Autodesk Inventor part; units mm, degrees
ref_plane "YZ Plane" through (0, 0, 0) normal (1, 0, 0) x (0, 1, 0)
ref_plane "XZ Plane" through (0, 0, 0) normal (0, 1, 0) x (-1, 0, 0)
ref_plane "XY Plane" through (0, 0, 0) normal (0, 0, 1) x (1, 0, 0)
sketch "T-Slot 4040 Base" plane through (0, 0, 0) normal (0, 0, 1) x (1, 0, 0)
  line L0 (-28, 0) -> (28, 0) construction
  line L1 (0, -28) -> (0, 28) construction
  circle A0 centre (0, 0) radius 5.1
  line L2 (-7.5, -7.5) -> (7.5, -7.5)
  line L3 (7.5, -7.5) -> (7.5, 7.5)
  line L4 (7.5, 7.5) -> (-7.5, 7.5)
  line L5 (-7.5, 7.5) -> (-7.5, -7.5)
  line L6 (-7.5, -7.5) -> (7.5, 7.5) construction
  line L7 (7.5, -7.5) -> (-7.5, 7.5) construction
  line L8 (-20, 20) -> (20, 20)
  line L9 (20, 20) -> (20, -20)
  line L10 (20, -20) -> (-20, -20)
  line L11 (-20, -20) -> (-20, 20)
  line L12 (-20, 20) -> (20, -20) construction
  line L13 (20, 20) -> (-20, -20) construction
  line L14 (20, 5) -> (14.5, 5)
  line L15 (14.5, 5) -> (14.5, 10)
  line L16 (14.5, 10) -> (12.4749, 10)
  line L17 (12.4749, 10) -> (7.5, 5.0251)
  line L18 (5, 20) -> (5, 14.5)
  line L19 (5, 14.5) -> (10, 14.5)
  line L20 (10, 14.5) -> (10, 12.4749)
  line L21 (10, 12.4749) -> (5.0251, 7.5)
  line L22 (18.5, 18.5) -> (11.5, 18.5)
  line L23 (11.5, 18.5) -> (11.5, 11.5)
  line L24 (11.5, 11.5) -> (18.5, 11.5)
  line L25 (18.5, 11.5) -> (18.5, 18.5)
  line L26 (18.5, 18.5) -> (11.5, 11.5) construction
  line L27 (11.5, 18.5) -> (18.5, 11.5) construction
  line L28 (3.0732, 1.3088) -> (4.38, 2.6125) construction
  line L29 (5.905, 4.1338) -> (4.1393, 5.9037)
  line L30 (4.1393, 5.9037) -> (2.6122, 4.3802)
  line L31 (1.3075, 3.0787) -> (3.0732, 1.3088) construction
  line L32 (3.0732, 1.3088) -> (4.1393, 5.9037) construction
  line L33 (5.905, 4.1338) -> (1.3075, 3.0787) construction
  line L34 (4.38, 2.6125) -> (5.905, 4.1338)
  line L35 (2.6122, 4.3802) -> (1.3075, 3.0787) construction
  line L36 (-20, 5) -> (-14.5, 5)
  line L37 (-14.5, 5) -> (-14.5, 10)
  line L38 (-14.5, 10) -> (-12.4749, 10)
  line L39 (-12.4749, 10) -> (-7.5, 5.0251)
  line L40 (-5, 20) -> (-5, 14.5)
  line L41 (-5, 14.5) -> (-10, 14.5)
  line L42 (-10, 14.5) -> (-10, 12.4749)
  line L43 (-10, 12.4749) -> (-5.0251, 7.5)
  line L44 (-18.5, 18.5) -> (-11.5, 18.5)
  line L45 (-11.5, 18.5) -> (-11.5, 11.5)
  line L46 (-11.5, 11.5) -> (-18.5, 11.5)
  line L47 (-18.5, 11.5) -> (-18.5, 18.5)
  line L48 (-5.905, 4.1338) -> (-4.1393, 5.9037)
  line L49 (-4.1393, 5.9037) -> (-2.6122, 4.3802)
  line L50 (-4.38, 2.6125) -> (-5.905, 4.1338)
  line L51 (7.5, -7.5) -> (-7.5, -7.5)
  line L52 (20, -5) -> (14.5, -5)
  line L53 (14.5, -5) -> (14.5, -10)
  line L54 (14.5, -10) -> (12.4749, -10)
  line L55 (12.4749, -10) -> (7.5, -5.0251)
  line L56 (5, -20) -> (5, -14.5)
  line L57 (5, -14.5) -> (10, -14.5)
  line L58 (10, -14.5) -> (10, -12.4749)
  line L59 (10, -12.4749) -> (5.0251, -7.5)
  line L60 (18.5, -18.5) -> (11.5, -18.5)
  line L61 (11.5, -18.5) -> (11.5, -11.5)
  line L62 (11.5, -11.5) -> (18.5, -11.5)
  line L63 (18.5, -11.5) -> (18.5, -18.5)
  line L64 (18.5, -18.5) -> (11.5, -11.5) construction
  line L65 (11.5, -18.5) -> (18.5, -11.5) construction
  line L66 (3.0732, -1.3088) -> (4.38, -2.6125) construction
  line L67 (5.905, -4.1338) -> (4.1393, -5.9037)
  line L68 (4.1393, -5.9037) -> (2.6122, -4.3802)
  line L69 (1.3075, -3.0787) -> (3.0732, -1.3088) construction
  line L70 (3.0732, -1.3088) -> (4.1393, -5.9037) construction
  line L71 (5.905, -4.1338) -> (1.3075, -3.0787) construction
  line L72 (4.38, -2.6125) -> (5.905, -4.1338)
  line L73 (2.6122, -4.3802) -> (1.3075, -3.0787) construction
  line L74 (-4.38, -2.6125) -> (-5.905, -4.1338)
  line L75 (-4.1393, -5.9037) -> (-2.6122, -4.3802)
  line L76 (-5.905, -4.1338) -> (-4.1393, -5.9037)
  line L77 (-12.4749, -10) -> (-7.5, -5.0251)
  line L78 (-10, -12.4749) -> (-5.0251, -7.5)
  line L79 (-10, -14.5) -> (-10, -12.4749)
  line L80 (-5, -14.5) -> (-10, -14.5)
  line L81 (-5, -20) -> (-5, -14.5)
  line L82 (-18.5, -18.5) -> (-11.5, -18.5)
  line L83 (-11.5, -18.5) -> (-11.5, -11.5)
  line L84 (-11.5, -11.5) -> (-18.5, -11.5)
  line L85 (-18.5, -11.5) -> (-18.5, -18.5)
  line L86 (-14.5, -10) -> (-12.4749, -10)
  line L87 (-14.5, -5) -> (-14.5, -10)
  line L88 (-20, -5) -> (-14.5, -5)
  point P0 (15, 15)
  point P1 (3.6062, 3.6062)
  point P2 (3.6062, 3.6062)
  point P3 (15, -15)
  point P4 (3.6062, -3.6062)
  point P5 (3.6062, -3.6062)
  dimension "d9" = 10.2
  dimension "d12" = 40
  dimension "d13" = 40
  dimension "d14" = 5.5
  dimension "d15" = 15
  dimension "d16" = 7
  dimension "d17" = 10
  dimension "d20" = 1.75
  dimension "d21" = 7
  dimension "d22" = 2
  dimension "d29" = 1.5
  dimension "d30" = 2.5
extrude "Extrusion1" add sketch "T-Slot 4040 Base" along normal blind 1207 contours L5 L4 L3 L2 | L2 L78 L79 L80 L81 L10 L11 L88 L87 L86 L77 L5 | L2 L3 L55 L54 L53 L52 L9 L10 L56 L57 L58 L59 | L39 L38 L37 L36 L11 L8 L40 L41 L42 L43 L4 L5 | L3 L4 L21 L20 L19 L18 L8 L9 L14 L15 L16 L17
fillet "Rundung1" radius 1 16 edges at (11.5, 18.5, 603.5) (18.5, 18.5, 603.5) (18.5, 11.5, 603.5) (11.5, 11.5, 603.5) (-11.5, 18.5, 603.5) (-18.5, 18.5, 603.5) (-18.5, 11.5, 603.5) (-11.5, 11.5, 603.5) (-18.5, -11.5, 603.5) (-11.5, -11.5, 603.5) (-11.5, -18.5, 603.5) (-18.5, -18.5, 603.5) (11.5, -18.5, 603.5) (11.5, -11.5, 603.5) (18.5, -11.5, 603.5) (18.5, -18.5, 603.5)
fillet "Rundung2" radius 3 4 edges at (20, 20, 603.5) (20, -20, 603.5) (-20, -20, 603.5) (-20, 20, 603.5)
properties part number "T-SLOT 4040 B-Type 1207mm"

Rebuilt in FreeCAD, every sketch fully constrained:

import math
import FreeCAD as App
import Part
import Sketcher
Q = App.Units.Quantity


def edges_at(feature, points):
    """Names of the edges that pass closest to the given points."""
    edges = feature.Shape.Edges
    near = lambda p: min(range(len(edges)), key=lambda i: edges[i].distToShape(Part.Vertex(*p))[0])
    return sorted({f"Edge{near(p) + 1}" for p in points})


def add_polygon(sketch, points):
    """Adds a closed chain of lines whose ends are joined by coincident constraints."""
    first, n = sketch.GeometryCount, len(points)
    for a, b in zip(points, points[1:] + points[:1]):
        sketch.addGeometry(Part.LineSegment(App.Vector(*a, 0), App.Vector(*b, 0)), False)
    for i in range(n):
        sketch.addConstraint(Sketcher.Constraint("Coincident", first + i, 2, first + (i + 1) % n, 1))

doc = App.newDocument("Part")
body = doc.addObject("PartDesign::Body", "Body")

# Sketch on XY plane
sketch1 = doc.addObject("Sketcher::SketchObject", "Sketch")
body.addObject(sketch1)
sketch1.AttachmentSupport = (doc.XY_Plane, [""])
sketch1.MapMode = "FlatFace"
add_polygon(sketch1, [(-7.5, 5.0251), (-7.5, -5.0251), (-12.4749, -10), (-14.5, -10), (-14.5, -5), (-20, -5), (-20, -20), (-5, -20), (-5, -14.5), (-10, -14.5), (-10, -12.4749), (-5.0251, -7.5), (5.0251, -7.5), (10, -12.4749), (10, -14.5), (5, -14.5), (5, -20), (20, -20), (20, -5), (14.5, -5), (14.5, -10), (12.4749, -10), (7.5, -5.0251), (7.5, 5.0251), (12.4749, 10), (14.5, 10), (14.5, 5), (20, 5), (20, 20), (5, 20), (5, 14.5), (10, 14.5), (10, 12.4749), (5.0251, 7.5), (-5.0251, 7.5), (-10, 12.4749), (-10, 14.5), (-5, 14.5), (-5, 20), (-20, 20), (-20, 5), (-14.5, 5), (-14.5, 10), (-12.4749, 10)])  # lines 0-43
sketch1.addGeometry(Part.ArcOfCircle(Part.Circle(App.Vector(0, 0, 0), App.Vector(0, 0, 1), 5.1), math.radians(-30.814436), math.radians(30.814436)), False)  # 44
sketch1.addGeometry(Part.LineSegment(App.Vector(4.38, -2.6125, 0), App.Vector(5.905, -4.1338, 0)), False)  # 45
sketch1.addGeometry(Part.LineSegment(App.Vector(5.905, -4.1338, 0), App.Vector(4.1393, -5.9037, 0)), False)  # 46
sketch1.addGeometry(Part.LineSegment(App.Vector(4.1393, -5.9037, 0), App.Vector(2.6122, -4.3802, 0)), False)  # 47
sketch1.addGeometry(Part.ArcOfCircle(Part.Circle(App.Vector(0, 0, 0), App.Vector(0, 0, 1), 5.1), math.radians(-120.810391), math.radians(-59.189609)), False)  # 48
sketch1.addGeometry(Part.LineSegment(App.Vector(-2.6122, -4.3802, 0), App.Vector(-4.1393, -5.9037, 0)), False)  # 49
sketch1.addGeometry(Part.LineSegment(App.Vector(-4.1393, -5.9037, 0), App.Vector(-5.905, -4.1338, 0)), False)  # 50
sketch1.addGeometry(Part.LineSegment(App.Vector(-5.905, -4.1338, 0), App.Vector(-4.38, -2.6125, 0)), False)  # 51
sketch1.addGeometry(Part.ArcOfCircle(Part.Circle(App.Vector(0, 0, 0), App.Vector(0, 0, 1), 5.1), math.radians(149.185564), math.radians(210.814436)), False)  # 52
sketch1.addGeometry(Part.LineSegment(App.Vector(-4.38, 2.6125, 0), App.Vector(-5.905, 4.1338, 0)), False)  # 53
sketch1.addGeometry(Part.LineSegment(App.Vector(-5.905, 4.1338, 0), App.Vector(-4.1393, 5.9037, 0)), False)  # 54
sketch1.addGeometry(Part.LineSegment(App.Vector(-4.1393, 5.9037, 0), App.Vector(-2.6122, 4.3802, 0)), False)  # 55
sketch1.addGeometry(Part.ArcOfCircle(Part.Circle(App.Vector(0, 0, 0), App.Vector(0, 0, 1), 5.1), math.radians(59.189609), math.radians(120.810391)), False)  # 56
sketch1.addGeometry(Part.LineSegment(App.Vector(2.6122, 4.3802, 0), App.Vector(4.1393, 5.9037, 0)), False)  # 57
sketch1.addGeometry(Part.LineSegment(App.Vector(4.1393, 5.9037, 0), App.Vector(5.905, 4.1338, 0)), False)  # 58
sketch1.addGeometry(Part.LineSegment(App.Vector(5.905, 4.1338, 0), App.Vector(4.38, 2.6125, 0)), False)  # 59
add_polygon(sketch1, [(-18.5, -11.5), (-11.5, -11.5), (-11.5, -18.5), (-18.5, -18.5)])  # lines 60-63
add_polygon(sketch1, [(-11.5, 18.5), (-11.5, 11.5), (-18.5, 11.5), (-18.5, 18.5)])  # lines 64-67
add_polygon(sketch1, [(18.5, 11.5), (11.5, 11.5), (11.5, 18.5), (18.5, 18.5)])  # lines 68-71
add_polygon(sketch1, [(11.5, -18.5), (11.5, -11.5), (18.5, -11.5), (18.5, -18.5)])  # lines 72-75
sketch1.addConstraint(Sketcher.Constraint("Coincident", 44, 1, 45, 1))
sketch1.addConstraint(Sketcher.Constraint("Coincident", 45, 2, 46, 1))
sketch1.addConstraint(Sketcher.Constraint("Coincident", 46, 2, 47, 1))
sketch1.addConstraint(Sketcher.Constraint("Coincident", 47, 2, 48, 2))
sketch1.addConstraint(Sketcher.Constraint("Coincident", 48, 1, 49, 1))
sketch1.addConstraint(Sketcher.Constraint("Coincident", 49, 2, 50, 1))
sketch1.addConstraint(Sketcher.Constraint("Coincident", 50, 2, 51, 1))
sketch1.addConstraint(Sketcher.Constraint("Coincident", 51, 2, 52, 2))
sketch1.addConstraint(Sketcher.Constraint("Coincident", 52, 1, 53, 1))
sketch1.addConstraint(Sketcher.Constraint("Coincident", 53, 2, 54, 1))
sketch1.addConstraint(Sketcher.Constraint("Coincident", 54, 2, 55, 1))
sketch1.addConstraint(Sketcher.Constraint("Coincident", 55, 2, 56, 2))
sketch1.addConstraint(Sketcher.Constraint("Coincident", 56, 1, 57, 1))
sketch1.addConstraint(Sketcher.Constraint("Coincident", 57, 2, 58, 1))
sketch1.addConstraint(Sketcher.Constraint("Coincident", 58, 2, 59, 1))
sketch1.addConstraint(Sketcher.Constraint("Coincident", 59, 2, 44, 2))
sketch1.addConstraint(Sketcher.Constraint("Vertical", 0))
sketch1.addConstraint(Sketcher.Constraint("Horizontal", 2))
sketch1.addConstraint(Sketcher.Constraint("Vertical", 3))
sketch1.addConstraint(Sketcher.Constraint("Horizontal", 4))
sketch1.addConstraint(Sketcher.Constraint("Vertical", 5))
sketch1.addConstraint(Sketcher.Constraint("Horizontal", 6))
sketch1.addConstraint(Sketcher.Constraint("Vertical", 7))
sketch1.addConstraint(Sketcher.Constraint("Horizontal", 8))
sketch1.addConstraint(Sketcher.Constraint("Vertical", 9))
sketch1.addConstraint(Sketcher.Constraint("Horizontal", 11))
sketch1.addConstraint(Sketcher.Constraint("Vertical", 13))
sketch1.addConstraint(Sketcher.Constraint("Horizontal", 14))
sketch1.addConstraint(Sketcher.Constraint("Vertical", 15))
sketch1.addConstraint(Sketcher.Constraint("Horizontal", 16))
sketch1.addConstraint(Sketcher.Constraint("Vertical", 17))
sketch1.addConstraint(Sketcher.Constraint("Horizontal", 18))
sketch1.addConstraint(Sketcher.Constraint("Vertical", 19))
sketch1.addConstraint(Sketcher.Constraint("Horizontal", 20))
sketch1.addConstraint(Sketcher.Constraint("Vertical", 22))
sketch1.addConstraint(Sketcher.Constraint("Horizontal", 24))
sketch1.addConstraint(Sketcher.Constraint("Vertical", 25))
sketch1.addConstraint(Sketcher.Constraint("Horizontal", 26))
sketch1.addConstraint(Sketcher.Constraint("Vertical", 27))
sketch1.addConstraint(Sketcher.Constraint("Horizontal", 28))
sketch1.addConstraint(Sketcher.Constraint("Vertical", 29))
sketch1.addConstraint(Sketcher.Constraint("Horizontal", 30))
sketch1.addConstraint(Sketcher.Constraint("Vertical", 31))
sketch1.addConstraint(Sketcher.Constraint("Horizontal", 33))
sketch1.addConstraint(Sketcher.Constraint("Vertical", 35))
sketch1.addConstraint(Sketcher.Constraint("Horizontal", 36))
sketch1.addConstraint(Sketcher.Constraint("Vertical", 37))
sketch1.addConstraint(Sketcher.Constraint("Horizontal", 38))
sketch1.addConstraint(Sketcher.Constraint("Vertical", 39))
sketch1.addConstraint(Sketcher.Constraint("Horizontal", 40))
sketch1.addConstraint(Sketcher.Constraint("Vertical", 41))
sketch1.addConstraint(Sketcher.Constraint("Horizontal", 42))
sketch1.addConstraint(Sketcher.Constraint("Horizontal", 60))
sketch1.addConstraint(Sketcher.Constraint("Vertical", 61))
sketch1.addConstraint(Sketcher.Constraint("Horizontal", 62))
sketch1.addConstraint(Sketcher.Constraint("Vertical", 63))
sketch1.addConstraint(Sketcher.Constraint("Vertical", 64))
sketch1.addConstraint(Sketcher.Constraint("Horizontal", 65))
sketch1.addConstraint(Sketcher.Constraint("Vertical", 66))
sketch1.addConstraint(Sketcher.Constraint("Horizontal", 67))
sketch1.addConstraint(Sketcher.Constraint("Horizontal", 68))
sketch1.addConstraint(Sketcher.Constraint("Vertical", 69))
sketch1.addConstraint(Sketcher.Constraint("Horizontal", 70))
sketch1.addConstraint(Sketcher.Constraint("Vertical", 71))
sketch1.addConstraint(Sketcher.Constraint("Vertical", 72))
sketch1.addConstraint(Sketcher.Constraint("Horizontal", 73))
sketch1.addConstraint(Sketcher.Constraint("Vertical", 74))
sketch1.addConstraint(Sketcher.Constraint("Horizontal", 75))
sketch1.addConstraint(Sketcher.Constraint("Coincident", 44, 3, -1, 1))
sketch1.addConstraint(Sketcher.Constraint("Coincident", 48, 3, -1, 1))
sketch1.addConstraint(Sketcher.Constraint("Coincident", 52, 3, -1, 1))
sketch1.addConstraint(Sketcher.Constraint("Coincident", 56, 3, -1, 1))
sketch1.addConstraint(Sketcher.Constraint("Equal", 44, 48))
sketch1.addConstraint(Sketcher.Constraint("Equal", 48, 52))
sketch1.addConstraint(Sketcher.Constraint("Equal", 52, 56))
sketch1.addConstraint(Sketcher.Constraint("Symmetric", 0, 2, 22, 2, -1, 1))
sketch1.addConstraint(Sketcher.Constraint("Symmetric", 1, 2, 23, 2, -1, 1))
sketch1.addConstraint(Sketcher.Constraint("Symmetric", 3, 2, 25, 2, -1, 1))
sketch1.addConstraint(Sketcher.Constraint("Symmetric", 5, 2, 27, 2, -1, 1))
sketch1.addConstraint(Sketcher.Constraint("Symmetric", 7, 2, 29, 2, -1, 1))
sketch1.addConstraint(Sketcher.Constraint("Symmetric", 9, 2, 31, 2, -1, 1))
sketch1.addConstraint(Sketcher.Constraint("Symmetric", 10, 2, 32, 2, -1, 1))
sketch1.addConstraint(Sketcher.Constraint("Symmetric", 12, 2, 34, 2, -1, 1))
sketch1.addConstraint(Sketcher.Constraint("Symmetric", 14, 2, 36, 2, -1, 1))
sketch1.addConstraint(Sketcher.Constraint("Symmetric", 16, 2, 38, 2, -1, 1))
sketch1.addConstraint(Sketcher.Constraint("Symmetric", 18, 2, 40, 2, -1, 1))
sketch1.addConstraint(Sketcher.Constraint("Symmetric", 20, 2, 42, 2, -1, 1))
sketch1.addConstraint(Sketcher.Constraint("Symmetric", 45, 2, 53, 2, -1, 1))
sketch1.addConstraint(Sketcher.Constraint("Symmetric", 46, 2, 54, 2, -1, 1))
sketch1.addConstraint(Sketcher.Constraint("Symmetric", 49, 2, 57, 2, -1, 1))
sketch1.addConstraint(Sketcher.Constraint("Symmetric", 50, 2, 58, 2, -1, 1))
sketch1.addConstraint(Sketcher.Constraint("Symmetric", 60, 2, 68, 2, -1, 1))
sketch1.addConstraint(Sketcher.Constraint("Symmetric", 62, 2, 70, 2, -1, 1))
sketch1.addConstraint(Sketcher.Constraint("Symmetric", 64, 2, 72, 2, -1, 1))
sketch1.addConstraint(Sketcher.Constraint("Symmetric", 66, 2, 74, 2, -1, 1))
sketch1.addConstraint(Sketcher.Constraint("Symmetric", 9, 2, 12, 2, -2))
sketch1.addConstraint(Sketcher.Constraint("Symmetric", 7, 2, 14, 2, -2))
sketch1.addConstraint(Sketcher.Constraint("Symmetric", 5, 2, 16, 2, -2))
sketch1.addConstraint(Sketcher.Constraint("Symmetric", 3, 2, 18, 2, -2))
sketch1.addConstraint(Sketcher.Constraint("Symmetric", 1, 2, 20, 2, -2))
sketch1.addConstraint(Sketcher.Constraint("Symmetric", 46, 2, 49, 2, -2))
sketch1.addConstraint(Sketcher.Constraint("Symmetric", 45, 2, 50, 2, -2))
sketch1.addConstraint(Sketcher.Constraint("Symmetric", 64, 2, 68, 2, -2))
sketch1.addConstraint(Sketcher.Constraint("Symmetric", 66, 2, 70, 2, -2))
sketch1.addConstraint(Sketcher.Constraint("Parallel", 1, 10))
sketch1.addConstraint(Sketcher.Constraint("Perpendicular", 10, 12))
sketch1.addConstraint(Sketcher.Constraint("Parallel", 12, 21))
sketch1.addConstraint(Sketcher.Constraint("Perpendicular", 32, 34))
sketch1.addConstraint(Sketcher.Constraint("Parallel", 34, 43))
sketch1.addConstraint(Sketcher.Constraint("Perpendicular", 45, 46))
sketch1.addConstraint(Sketcher.Constraint("Perpendicular", 46, 47))
sketch1.addConstraint(Sketcher.Constraint("Perpendicular", 49, 50))
sketch1.addConstraint(Sketcher.Constraint("Perpendicular", 50, 51))
sketch1.addConstraint(Sketcher.Constraint("Parallel", 47, 53))
sketch1.addConstraint(Sketcher.Constraint("Perpendicular", 54, 55))
sketch1.addConstraint(Sketcher.Constraint("Parallel", 51, 57))
sketch1.addConstraint(Sketcher.Constraint("Perpendicular", 58, 59))
sketch1.addConstraint(Sketcher.Constraint("Horizontal", 0, 2, 21, 2))
sketch1.addConstraint(Sketcher.Constraint("Equal", 33, 0))
sketch1.addConstraint(Sketcher.Constraint("Equal", 36, 3))
sketch1.addConstraint(Sketcher.Constraint("Equal", 38, 5))
sketch1.addConstraint(Sketcher.Constraint("Equal", 40, 7))
sketch1.addConstraint(Sketcher.Constraint("Equal", 42, 9))
sketch1.addConstraint(Sketcher.Constraint("Equal", 75, 61))
sketch1.addConstraint(Sketcher.Constraint("Equal", 1, 10))
sketch1.addConstraint(Sketcher.Constraint("Radius", 44, 5.1))
sketch1.addConstraint(Sketcher.Constraint("DistanceX", 6, 1, 6, 2, 15.0))
sketch1.addConstraint(Sketcher.Constraint("DistanceX", 60, 1, 60, 2, 7.0))
sketch1.addConstraint(Sketcher.Constraint("DistanceX", 4, 2, 4, 1, 5.5))
sketch1.addConstraint(Sketcher.Constraint("DistanceY", 1, 2, -1, 1, 10.0))
sketch1.addConstraint(Sketcher.Constraint("Distance", 46, 2.5))
sketch1.addConstraint(Sketcher.Constraint("DistanceX", 8, 2, 8, 1, 5.0))
sketch1.addConstraint(Sketcher.Constraint("DistanceX", 0, 2, -1, 1, 7.5))
sketch1.addConstraint(Sketcher.Constraint("DistanceX", 60, 2, -1, 1, 11.5))
sketch1.addConstraint(Sketcher.Constraint("DistanceY", 60, 2, -1, 1, 11.5))
sketch1.addConstraint(Sketcher.Constraint("Angle", 45, Q("-44.9304 deg")))
sketch1.addConstraint(Sketcher.Constraint("DistanceX", 2, 2, 2, 1, 2.025))
sketch1.addConstraint(Sketcher.Constraint("DistanceX", -1, 1, 44, 1, 4.38))
sketch1.addConstraint(Sketcher.Constraint("Distance", 45, 2.154))
pad1 = doc.addObject("PartDesign::Pad", "Pad")
body.addObject(pad1)
pad1.Profile = sketch1
pad1.Length = 1207
doc.recompute()

fillet = doc.addObject("PartDesign::Fillet", "Fillet")
body.addObject(fillet)
fillet.Base = (pad1, edges_at(pad1, [
    (11.5, 18.5, 603.5),
    (18.5, 18.5, 603.5),
    (18.5, 11.5, 603.5),
    (11.5, 11.5, 603.5),
    (-11.5, 18.5, 603.5),
    (-18.5, 18.5, 603.5),
    (-18.5, 11.5, 603.5),
    (-11.5, 11.5, 603.5),
    (-18.5, -11.5, 603.5),
    (-11.5, -11.5, 603.5),
    (-11.5, -18.5, 603.5),
    (-18.5, -18.5, 603.5),
    (11.5, -18.5, 603.5),
    (11.5, -11.5, 603.5),
    (18.5, -11.5, 603.5),
    (18.5, -18.5, 603.5),
]))
fillet.Radius = 1
doc.recompute()

fillet2 = doc.addObject("PartDesign::Fillet", "Fillet001")
body.addObject(fillet2)
fillet2.Base = (fillet, edges_at(fillet, [
    (20, 20, 603.5),
    (20, -20, 603.5),
    (-20, -20, 603.5),
    (-20, 20, 603.5),
]))
fillet2.Radius = 3

doc.recompute()
